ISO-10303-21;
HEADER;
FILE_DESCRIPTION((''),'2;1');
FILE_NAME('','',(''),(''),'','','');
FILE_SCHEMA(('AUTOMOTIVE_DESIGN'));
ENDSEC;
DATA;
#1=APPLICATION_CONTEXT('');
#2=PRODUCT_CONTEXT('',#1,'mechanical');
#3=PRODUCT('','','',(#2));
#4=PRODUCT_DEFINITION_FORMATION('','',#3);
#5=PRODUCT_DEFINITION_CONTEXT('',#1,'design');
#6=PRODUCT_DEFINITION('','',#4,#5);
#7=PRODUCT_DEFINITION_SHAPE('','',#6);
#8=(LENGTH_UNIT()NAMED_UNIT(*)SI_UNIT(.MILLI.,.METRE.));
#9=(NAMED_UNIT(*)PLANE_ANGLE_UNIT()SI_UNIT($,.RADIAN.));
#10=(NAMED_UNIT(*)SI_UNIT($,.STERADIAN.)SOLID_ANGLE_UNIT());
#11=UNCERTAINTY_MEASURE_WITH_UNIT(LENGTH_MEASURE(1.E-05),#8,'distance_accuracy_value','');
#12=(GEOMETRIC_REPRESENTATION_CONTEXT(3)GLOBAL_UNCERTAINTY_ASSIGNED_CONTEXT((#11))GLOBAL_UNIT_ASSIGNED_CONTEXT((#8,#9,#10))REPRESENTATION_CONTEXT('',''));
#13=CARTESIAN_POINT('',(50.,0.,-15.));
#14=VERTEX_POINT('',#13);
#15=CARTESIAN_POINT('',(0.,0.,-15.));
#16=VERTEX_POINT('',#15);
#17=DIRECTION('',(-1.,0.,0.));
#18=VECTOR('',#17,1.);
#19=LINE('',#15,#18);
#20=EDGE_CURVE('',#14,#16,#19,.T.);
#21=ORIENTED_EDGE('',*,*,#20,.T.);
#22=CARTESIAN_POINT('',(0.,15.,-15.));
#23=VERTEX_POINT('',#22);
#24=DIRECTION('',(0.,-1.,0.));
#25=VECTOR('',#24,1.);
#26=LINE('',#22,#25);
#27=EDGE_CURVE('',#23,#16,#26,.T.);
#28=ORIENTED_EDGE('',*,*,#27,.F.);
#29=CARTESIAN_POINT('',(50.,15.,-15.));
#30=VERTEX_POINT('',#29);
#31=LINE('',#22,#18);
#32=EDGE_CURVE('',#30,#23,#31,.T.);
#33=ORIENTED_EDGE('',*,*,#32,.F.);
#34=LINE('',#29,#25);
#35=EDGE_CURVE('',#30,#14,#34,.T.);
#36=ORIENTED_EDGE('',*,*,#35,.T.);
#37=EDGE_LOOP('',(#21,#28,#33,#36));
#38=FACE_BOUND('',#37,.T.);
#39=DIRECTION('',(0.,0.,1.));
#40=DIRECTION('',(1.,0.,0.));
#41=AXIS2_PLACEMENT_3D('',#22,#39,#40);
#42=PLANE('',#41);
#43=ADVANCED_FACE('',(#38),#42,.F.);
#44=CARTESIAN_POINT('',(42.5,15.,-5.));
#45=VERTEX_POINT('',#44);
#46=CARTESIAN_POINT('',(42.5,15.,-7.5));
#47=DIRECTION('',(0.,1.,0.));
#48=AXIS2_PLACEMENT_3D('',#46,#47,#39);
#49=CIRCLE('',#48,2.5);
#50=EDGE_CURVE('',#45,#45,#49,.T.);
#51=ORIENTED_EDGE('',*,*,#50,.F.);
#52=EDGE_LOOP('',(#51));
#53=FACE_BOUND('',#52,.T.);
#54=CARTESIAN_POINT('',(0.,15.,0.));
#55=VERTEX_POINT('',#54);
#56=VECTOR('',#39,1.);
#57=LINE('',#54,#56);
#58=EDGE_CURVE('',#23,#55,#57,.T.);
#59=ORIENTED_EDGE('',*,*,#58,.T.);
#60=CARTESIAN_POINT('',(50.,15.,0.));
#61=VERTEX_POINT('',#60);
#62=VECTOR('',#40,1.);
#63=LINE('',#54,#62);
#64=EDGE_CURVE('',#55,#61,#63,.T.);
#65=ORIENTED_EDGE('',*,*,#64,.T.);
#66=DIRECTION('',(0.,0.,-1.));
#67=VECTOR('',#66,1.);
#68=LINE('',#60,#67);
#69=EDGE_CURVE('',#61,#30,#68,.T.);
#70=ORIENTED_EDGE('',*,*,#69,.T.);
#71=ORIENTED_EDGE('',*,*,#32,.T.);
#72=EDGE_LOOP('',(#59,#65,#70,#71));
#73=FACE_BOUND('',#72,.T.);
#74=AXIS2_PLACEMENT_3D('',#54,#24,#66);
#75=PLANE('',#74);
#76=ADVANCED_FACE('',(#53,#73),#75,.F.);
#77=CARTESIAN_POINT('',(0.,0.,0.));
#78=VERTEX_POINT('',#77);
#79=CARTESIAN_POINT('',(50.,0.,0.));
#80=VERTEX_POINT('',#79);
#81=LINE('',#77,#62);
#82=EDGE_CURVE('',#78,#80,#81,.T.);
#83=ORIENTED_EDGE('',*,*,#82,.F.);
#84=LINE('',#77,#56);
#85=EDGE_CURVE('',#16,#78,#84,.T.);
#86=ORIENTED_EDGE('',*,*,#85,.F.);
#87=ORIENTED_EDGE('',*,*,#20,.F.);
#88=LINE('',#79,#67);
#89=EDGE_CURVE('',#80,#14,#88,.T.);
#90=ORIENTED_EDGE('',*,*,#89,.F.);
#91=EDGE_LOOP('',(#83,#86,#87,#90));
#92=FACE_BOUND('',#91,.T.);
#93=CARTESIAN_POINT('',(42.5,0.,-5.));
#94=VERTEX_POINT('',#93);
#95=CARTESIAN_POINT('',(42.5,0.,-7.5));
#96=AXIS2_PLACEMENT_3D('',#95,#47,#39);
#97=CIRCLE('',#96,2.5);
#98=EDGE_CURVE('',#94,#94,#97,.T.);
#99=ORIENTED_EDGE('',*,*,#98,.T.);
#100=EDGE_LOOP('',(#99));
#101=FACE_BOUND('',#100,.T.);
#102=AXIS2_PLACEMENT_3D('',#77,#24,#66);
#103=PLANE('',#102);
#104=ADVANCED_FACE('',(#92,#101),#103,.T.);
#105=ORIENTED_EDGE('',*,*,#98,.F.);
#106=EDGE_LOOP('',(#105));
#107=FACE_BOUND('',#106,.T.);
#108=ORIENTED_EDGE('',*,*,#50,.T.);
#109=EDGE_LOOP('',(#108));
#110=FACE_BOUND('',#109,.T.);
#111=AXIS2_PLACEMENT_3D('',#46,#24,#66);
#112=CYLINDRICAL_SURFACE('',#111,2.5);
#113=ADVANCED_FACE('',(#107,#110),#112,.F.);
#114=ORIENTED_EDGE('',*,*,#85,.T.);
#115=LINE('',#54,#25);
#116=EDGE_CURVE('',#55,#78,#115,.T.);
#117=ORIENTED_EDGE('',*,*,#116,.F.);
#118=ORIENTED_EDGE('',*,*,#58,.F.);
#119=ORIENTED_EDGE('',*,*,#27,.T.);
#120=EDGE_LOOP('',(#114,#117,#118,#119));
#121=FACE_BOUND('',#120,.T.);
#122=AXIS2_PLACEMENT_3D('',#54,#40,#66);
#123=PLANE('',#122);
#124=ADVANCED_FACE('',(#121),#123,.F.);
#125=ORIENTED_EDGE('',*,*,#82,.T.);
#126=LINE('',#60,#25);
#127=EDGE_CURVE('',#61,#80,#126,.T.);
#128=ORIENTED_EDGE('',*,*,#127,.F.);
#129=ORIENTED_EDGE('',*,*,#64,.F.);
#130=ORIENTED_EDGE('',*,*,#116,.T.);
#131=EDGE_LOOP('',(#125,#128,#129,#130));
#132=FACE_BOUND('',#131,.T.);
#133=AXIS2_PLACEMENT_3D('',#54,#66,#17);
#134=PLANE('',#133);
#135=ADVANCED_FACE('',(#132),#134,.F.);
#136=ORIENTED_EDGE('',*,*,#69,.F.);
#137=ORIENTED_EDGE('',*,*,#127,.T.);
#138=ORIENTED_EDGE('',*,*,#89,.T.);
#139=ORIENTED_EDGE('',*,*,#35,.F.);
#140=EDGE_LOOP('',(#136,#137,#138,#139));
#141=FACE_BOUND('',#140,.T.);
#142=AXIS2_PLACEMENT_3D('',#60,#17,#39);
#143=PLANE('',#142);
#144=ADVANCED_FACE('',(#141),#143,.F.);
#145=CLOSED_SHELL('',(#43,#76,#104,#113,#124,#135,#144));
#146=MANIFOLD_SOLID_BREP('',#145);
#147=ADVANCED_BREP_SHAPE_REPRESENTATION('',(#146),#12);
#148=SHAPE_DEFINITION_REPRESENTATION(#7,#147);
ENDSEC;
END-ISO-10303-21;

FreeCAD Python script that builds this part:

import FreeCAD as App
import Part
import Sketcher
from FreeCAD import Vector
Q = App.Units.Quantity

doc = App.newDocument("Part")
body = doc.addObject("PartDesign::Body", "Body")

sketch1 = body.newObject("Sketcher::SketchObject", "Sketch")
sketch1.AttachmentSupport = (doc.getObject("XZ_Plane"), [""])
sketch1.MapMode = "FlatFace"
sketch1.addGeometry([
    Part.LineSegment(Vector(0, -15, 0), Vector(0, 0, 0)),
    Part.LineSegment(Vector(0, 0, 0), Vector(50, 0, 0)),
    Part.LineSegment(Vector(50, 0, 0), Vector(50, -15, 0)),
    Part.LineSegment(Vector(50, -15, 0), Vector(0, -15, 0)),
    Part.Circle(Vector(42.5, -7.5, 0), Vector(0, 0, 1), 2.5),
], False)
sketch1.addConstraint([
    Sketcher.Constraint("Coincident", 0, 2, 1, 1),
    Sketcher.Constraint("Coincident", 1, 2, 2, 1),
    Sketcher.Constraint("Coincident", 2, 2, 3, 1),
    Sketcher.Constraint("Coincident", 3, 2, 0, 1),
    Sketcher.Constraint("Vertical", 0),
    Sketcher.Constraint("Horizontal", 1),
    Sketcher.Constraint("Vertical", 2),
    Sketcher.Constraint("Horizontal", 3),
    Sketcher.Constraint("Coincident", 0, 2, -1, 1),
    Sketcher.Constraint("Diameter", 4, Q("5 mm")),
    Sketcher.Constraint("DistanceX", 1, 1, 1, 2, Q("50 mm")),
    Sketcher.Constraint("DistanceY", 0, 1, 0, 2, Q("15 mm")),
    Sketcher.Constraint("DistanceX", -1, 1, 4, 3, Q("42.5 mm")),
    Sketcher.Constraint("DistanceY", 4, 3, -1, 1, Q("7.5 mm")),
])
pad1 = body.newObject("PartDesign::Pad", "Pad")
pad1.Profile = sketch1
pad1.Length = 15
pad1.Reversed = True

doc.recompute()
